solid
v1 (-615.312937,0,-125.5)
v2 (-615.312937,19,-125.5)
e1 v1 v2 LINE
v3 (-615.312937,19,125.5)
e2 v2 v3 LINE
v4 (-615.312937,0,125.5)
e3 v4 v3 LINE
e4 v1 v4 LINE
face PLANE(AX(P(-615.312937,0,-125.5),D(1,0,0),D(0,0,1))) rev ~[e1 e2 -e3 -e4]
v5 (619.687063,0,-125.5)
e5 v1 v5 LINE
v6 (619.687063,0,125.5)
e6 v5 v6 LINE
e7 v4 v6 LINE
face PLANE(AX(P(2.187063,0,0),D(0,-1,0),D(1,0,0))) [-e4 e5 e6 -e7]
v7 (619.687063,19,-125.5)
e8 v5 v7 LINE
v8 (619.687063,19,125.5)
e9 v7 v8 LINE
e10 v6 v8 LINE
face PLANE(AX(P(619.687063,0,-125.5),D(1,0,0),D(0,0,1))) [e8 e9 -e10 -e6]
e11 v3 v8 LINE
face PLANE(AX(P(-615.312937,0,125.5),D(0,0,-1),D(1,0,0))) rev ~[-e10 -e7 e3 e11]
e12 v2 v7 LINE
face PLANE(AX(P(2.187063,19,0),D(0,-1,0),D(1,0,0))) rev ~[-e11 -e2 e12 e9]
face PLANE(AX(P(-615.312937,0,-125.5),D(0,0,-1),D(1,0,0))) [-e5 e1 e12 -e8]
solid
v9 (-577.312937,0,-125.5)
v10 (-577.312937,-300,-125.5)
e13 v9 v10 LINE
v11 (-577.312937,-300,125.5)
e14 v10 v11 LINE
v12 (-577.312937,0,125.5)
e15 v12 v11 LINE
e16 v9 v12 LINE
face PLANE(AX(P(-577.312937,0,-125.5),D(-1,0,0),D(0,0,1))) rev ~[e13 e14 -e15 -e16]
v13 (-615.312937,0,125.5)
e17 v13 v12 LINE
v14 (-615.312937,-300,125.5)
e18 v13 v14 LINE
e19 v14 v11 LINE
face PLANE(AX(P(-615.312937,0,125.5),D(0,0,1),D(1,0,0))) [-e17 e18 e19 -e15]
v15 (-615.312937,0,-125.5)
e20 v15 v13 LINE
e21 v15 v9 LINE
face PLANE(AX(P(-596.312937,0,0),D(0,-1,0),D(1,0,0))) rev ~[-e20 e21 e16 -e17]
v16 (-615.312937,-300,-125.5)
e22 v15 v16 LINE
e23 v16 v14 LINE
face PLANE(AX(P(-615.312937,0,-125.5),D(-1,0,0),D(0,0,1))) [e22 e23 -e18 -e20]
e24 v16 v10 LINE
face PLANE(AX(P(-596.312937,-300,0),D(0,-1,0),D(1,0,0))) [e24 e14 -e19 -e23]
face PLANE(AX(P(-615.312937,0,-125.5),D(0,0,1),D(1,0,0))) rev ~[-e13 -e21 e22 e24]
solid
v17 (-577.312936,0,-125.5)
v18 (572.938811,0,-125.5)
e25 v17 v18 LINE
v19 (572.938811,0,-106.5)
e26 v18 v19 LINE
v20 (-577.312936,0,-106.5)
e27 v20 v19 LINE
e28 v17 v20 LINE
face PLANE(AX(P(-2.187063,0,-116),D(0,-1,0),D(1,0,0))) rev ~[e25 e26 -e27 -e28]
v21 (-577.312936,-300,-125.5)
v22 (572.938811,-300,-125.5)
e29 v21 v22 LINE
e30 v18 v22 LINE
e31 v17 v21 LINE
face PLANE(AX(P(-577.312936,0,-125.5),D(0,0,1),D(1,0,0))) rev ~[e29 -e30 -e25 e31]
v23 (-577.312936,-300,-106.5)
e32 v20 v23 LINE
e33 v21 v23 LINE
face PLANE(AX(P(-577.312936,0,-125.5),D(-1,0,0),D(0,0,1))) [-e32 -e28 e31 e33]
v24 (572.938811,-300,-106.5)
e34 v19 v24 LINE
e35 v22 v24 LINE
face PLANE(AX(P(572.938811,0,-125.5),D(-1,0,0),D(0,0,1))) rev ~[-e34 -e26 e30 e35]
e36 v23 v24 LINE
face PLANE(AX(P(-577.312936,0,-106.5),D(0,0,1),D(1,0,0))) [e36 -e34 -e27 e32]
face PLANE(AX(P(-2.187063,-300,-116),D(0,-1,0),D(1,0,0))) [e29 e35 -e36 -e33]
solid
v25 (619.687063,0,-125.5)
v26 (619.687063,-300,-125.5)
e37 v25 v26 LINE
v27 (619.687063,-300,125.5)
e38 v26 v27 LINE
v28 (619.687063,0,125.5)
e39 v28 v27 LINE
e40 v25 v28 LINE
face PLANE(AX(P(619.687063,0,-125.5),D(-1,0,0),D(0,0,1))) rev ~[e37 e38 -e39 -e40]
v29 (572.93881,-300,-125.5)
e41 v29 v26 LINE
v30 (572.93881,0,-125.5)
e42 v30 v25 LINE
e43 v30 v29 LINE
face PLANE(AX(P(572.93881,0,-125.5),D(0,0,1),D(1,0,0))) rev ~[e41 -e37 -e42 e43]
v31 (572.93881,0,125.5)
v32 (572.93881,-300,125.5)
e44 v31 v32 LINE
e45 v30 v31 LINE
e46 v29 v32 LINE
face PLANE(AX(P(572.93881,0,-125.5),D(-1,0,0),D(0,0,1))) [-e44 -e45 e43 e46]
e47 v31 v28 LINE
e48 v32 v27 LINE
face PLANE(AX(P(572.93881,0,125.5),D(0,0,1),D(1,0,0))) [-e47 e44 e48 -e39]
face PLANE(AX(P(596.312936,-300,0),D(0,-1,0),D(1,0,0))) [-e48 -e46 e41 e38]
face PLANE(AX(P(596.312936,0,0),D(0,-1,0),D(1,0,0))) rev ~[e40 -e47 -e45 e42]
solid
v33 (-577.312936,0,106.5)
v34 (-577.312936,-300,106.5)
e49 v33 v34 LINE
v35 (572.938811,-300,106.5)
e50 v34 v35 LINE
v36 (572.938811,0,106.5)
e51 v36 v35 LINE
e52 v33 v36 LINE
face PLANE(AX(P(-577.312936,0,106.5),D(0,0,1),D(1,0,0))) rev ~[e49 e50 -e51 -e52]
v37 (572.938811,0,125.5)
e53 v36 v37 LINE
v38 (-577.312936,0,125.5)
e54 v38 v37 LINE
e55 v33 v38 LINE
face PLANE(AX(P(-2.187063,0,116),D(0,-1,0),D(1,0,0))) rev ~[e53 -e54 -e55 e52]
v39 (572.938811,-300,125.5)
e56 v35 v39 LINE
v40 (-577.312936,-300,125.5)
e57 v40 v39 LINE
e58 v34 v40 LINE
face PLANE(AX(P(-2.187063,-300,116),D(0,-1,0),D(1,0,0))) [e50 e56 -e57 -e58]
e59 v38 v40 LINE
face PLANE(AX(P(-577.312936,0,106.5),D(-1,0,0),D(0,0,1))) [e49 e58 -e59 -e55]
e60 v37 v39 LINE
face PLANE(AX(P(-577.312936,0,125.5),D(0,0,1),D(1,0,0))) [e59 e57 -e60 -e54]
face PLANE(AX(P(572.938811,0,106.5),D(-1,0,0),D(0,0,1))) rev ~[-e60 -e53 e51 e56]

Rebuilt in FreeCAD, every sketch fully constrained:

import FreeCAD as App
import Part
import Sketcher


def add_polygon(sketch, points):
    """Adds a closed chain of lines whose ends are joined by coincident constraints."""
    first, n = sketch.GeometryCount, len(points)
    for a, b in zip(points, points[1:] + points[:1]):
        sketch.addGeometry(Part.LineSegment(App.Vector(*a, 0), App.Vector(*b, 0)), False)
    for i in range(n):
        sketch.addConstraint(Sketcher.Constraint("Coincident", first + i, 2, first + (i + 1) % n, 1))

doc = App.newDocument("Part")
body = doc.addObject("PartDesign::Body", "Body")
body.AllowCompound = True

# Sketch on XZ plane
sketch1 = body.newObject("Sketcher::SketchObject", "Sketch")
sketch1.AttachmentSupport = (doc.getObject("XZ_Plane"), [""])
sketch1.MapMode = "FlatFace"
add_polygon(sketch1, [(-615.312937, 125.5), (-615.312937, -125.5), (-577.312937, -125.5), (-577.312937, 125.5)])  # lines 0-3
add_polygon(sketch1, [(572.93881, 125.5), (572.93881, -125.5), (619.687063, -125.5), (619.687063, 125.5)])  # lines 4-7
sketch1.addConstraint([
    Sketcher.Constraint("Vertical", 0),
    Sketcher.Constraint("Horizontal", 1),
    Sketcher.Constraint("Vertical", 2),
    Sketcher.Constraint("Horizontal", 3),
    Sketcher.Constraint("Vertical", 4),
    Sketcher.Constraint("Horizontal", 5),
    Sketcher.Constraint("Vertical", 6),
    Sketcher.Constraint("Horizontal", 7),
    Sketcher.Constraint("Horizontal", 1, 2, 4, 2),
    Sketcher.Constraint("Horizontal", 3, 2, 6, 2),
    Sketcher.Constraint("DistanceX", 1, 1, 1, 2, 38.0),
    Sketcher.Constraint("DistanceY", 0, 2, 0, 1, 251.0),
    Sketcher.Constraint("DistanceX", 1, 2, 5, 2, 1197.0),
    Sketcher.Constraint("DistanceY", 0, 2, -1, 1, 125.5),
    Sketcher.Constraint("DistanceX", 5, 1, 5, 2, 46.748253),
    Sketcher.Constraint("DistanceX", -1, 1, 4, 2, 572.93881),
])
pad1 = body.newObject("PartDesign::Pad", "Pad")
pad1.Profile = sketch1
pad1.Length = 300
body2 = doc.addObject("PartDesign::Body", "Body001")
body2.AllowCompound = True

# Sketch on XZ plane
sketch2 = body2.newObject("Sketcher::SketchObject", "Sketch001")
sketch2.AttachmentSupport = (doc.getObject("XZ_Plane001"), [""])
sketch2.MapMode = "FlatFace"
add_polygon(sketch2, [(-577.312936, 125.5), (-577.312936, 106.5), (572.938811, 106.5), (572.938811, 125.5)])  # lines 0-3
add_polygon(sketch2, [(-577.312936, -106.5), (-577.312936, -125.5), (572.938811, -125.5), (572.938811, -106.5)])  # lines 4-7
sketch2.addConstraint([
    Sketcher.Constraint("Vertical", 0),
    Sketcher.Constraint("Horizontal", 1),
    Sketcher.Constraint("Vertical", 2),
    Sketcher.Constraint("Horizontal", 3),
    Sketcher.Constraint("Vertical", 4),
    Sketcher.Constraint("Horizontal", 5),
    Sketcher.Constraint("Vertical", 6),
    Sketcher.Constraint("Horizontal", 7),
    Sketcher.Constraint("Symmetric", 3, 2, 4, 2, -1),
    Sketcher.Constraint("Symmetric", 1, 2, 6, 2, -1),
    Sketcher.Constraint("DistanceY", 0, 2, 0, 1, 19.0),
    Sketcher.Constraint("DistanceY", 4, 2, 0, 2, 232.0),
    Sketcher.Constraint("DistanceX", 1, 1, 1, 2, 1150.251747),
    Sketcher.Constraint("DistanceX", -1, 1, 1, 2, 572.938811),
])
pad2 = body2.newObject("PartDesign::Pad", "Pad001")
pad2.Profile = sketch2
pad2.Length = 300
body3 = doc.addObject("PartDesign::Body", "Body002")

# Sketch on XZ plane
sketch3 = body3.newObject("Sketcher::SketchObject", "Sketch002")
sketch3.AttachmentSupport = (doc.getObject("XZ_Plane002"), [""])
sketch3.MapMode = "FlatFace"
add_polygon(sketch3, [(-615.312937, 125.5), (-615.312937, -125.5), (619.687063, -125.5), (619.687063, 125.5)])  # lines 0-3
sketch3.addConstraint([
    Sketcher.Constraint("Vertical", 0),
    Sketcher.Constraint("Horizontal", 1),
    Sketcher.Constraint("Vertical", 2),
    Sketcher.Constraint("Horizontal", 3),
    Sketcher.Constraint("DistanceX", 1, 1, 1, 2, 1235.0),
    Sketcher.Constraint("DistanceY", 0, 2, 0, 1, 251.0),
    Sketcher.Constraint("DistanceY", 0, 2, -1, 1, 125.5),
    Sketcher.Constraint("DistanceX", 0, 2, -1, 1, 615.312937),
])
pad3 = body3.newObject("PartDesign::Pad", "Pad002")
pad3.Profile = sketch3
pad3.Length = 19
pad3.Reversed = True

doc.recompute()
